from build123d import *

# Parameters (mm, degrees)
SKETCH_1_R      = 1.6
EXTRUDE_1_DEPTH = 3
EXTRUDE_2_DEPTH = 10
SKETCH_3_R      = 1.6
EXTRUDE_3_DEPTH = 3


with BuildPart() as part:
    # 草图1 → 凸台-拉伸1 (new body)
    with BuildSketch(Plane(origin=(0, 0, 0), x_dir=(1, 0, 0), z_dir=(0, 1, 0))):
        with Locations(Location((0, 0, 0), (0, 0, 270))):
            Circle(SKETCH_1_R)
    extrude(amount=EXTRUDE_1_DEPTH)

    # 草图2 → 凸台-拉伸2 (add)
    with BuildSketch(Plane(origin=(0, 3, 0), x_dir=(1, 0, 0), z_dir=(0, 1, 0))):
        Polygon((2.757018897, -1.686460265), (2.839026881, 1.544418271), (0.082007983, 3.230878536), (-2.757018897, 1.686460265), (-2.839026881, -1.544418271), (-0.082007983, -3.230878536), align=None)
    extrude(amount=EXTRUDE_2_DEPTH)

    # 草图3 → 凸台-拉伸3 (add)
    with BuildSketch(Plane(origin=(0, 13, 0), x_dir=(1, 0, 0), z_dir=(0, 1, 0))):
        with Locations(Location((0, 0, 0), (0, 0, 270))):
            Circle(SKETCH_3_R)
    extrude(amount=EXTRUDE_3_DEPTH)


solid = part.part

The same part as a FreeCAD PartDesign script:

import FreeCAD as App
import Part
import Sketcher
from FreeCAD import Vector


def add_polygon(sketch, points):
    """Adds a closed chain of lines whose ends are joined by coincident constraints."""
    first, n = sketch.GeometryCount, len(points)
    for a, b in zip(points, points[1:] + points[:1]):
        sketch.addGeometry(Part.LineSegment(App.Vector(*a, 0), App.Vector(*b, 0)), False)
    for i in range(n):
        sketch.addConstraint(Sketcher.Constraint("Coincident", first + i, 2, first + (i + 1) % n, 1))

doc = App.newDocument("Part")
body = doc.addObject("PartDesign::Body", "Body")

# Sketch on XZ plane
sketch1 = body.newObject("Sketcher::SketchObject", "Sketch")
sketch1.AttachmentSupport = (doc.getObject("XZ_Plane"), [""])
sketch1.MapMode = "FlatFace"
sketch1.addGeometry(Part.Circle(Vector(0, 0, 0), Vector(0, 0, 1), 1.6), False)
sketch1.addConstraint(Sketcher.Constraint("Coincident", 0, 3, -1, 1))
sketch1.addConstraint(Sketcher.Constraint("Diameter", 0, 3.2))
pad1 = body.newObject("PartDesign::Pad", "Pad")
pad1.Profile = sketch1
pad1.Length = 3
pad1.Reversed = True

# Sketch on XZ plane
sketch2 = body.newObject("Sketcher::SketchObject", "Sketch001")
sketch2.AttachmentSupport = (doc.getObject("XZ_Plane"), [""])
sketch2.MapMode = "FlatFace"
sketch2.AttachmentOffset = App.Placement(Vector(0, 0, -3), App.Rotation())
add_polygon(sketch2, [(2.8, 1.7), (2.8, -1.5), (0.1, -3.2), (-2.8, -1.7), (-2.8, 1.5), (-0.1, 3.2)])  # lines 0-5
sketch2.addConstraint(Sketcher.Constraint("Symmetric", 0, 2, 3, 2, -1, 1))
sketch2.addConstraint(Sketcher.Constraint("Symmetric", 1, 2, 4, 2, -1, 1))
sketch2.addConstraint(Sketcher.Constraint("Symmetric", 2, 2, 5, 2, -1, 1))
sketch2.addConstraint(Sketcher.Constraint("Equal", 0, 1))
sketch2.addConstraint(Sketcher.Constraint("Equal", 1, 2))
sketch2.addConstraint(Sketcher.Constraint("Distance", 0, 3.231919))
sketch2.addConstraint(Sketcher.Constraint("DistanceY", 0, 2, -1, 1, 1.544418))
sketch2.addConstraint(Sketcher.Constraint("DistanceY", 1, 2, -1, 1, 3.230879))
sketch2.addConstraint(Sketcher.Constraint("DistanceX", 2, 2, -1, 1, 2.757019))
pad2 = body.newObject("PartDesign::Pad", "Pad001")
pad2.Profile = sketch2
pad2.Length = 10
pad2.Reversed = True

# Sketch on XZ plane
sketch3 = body.newObject("Sketcher::SketchObject", "Sketch002")
sketch3.AttachmentSupport = (doc.getObject("XZ_Plane"), [""])
sketch3.MapMode = "FlatFace"
sketch3.AttachmentOffset = App.Placement(Vector(0, 0, -13), App.Rotation())
sketch3.addGeometry(Part.Circle(Vector(0, 0, 0), Vector(0, 0, 1), 1.6), False)
sketch3.addConstraint(Sketcher.Constraint("Coincident", 0, 3, -1, 1))
sketch3.addConstraint(Sketcher.Constraint("Diameter", 0, 3.2))
pad3 = body.newObject("PartDesign::Pad", "Pad002")
pad3.Profile = sketch3
pad3.Length = 3
pad3.Reversed = True

doc.recompute()
